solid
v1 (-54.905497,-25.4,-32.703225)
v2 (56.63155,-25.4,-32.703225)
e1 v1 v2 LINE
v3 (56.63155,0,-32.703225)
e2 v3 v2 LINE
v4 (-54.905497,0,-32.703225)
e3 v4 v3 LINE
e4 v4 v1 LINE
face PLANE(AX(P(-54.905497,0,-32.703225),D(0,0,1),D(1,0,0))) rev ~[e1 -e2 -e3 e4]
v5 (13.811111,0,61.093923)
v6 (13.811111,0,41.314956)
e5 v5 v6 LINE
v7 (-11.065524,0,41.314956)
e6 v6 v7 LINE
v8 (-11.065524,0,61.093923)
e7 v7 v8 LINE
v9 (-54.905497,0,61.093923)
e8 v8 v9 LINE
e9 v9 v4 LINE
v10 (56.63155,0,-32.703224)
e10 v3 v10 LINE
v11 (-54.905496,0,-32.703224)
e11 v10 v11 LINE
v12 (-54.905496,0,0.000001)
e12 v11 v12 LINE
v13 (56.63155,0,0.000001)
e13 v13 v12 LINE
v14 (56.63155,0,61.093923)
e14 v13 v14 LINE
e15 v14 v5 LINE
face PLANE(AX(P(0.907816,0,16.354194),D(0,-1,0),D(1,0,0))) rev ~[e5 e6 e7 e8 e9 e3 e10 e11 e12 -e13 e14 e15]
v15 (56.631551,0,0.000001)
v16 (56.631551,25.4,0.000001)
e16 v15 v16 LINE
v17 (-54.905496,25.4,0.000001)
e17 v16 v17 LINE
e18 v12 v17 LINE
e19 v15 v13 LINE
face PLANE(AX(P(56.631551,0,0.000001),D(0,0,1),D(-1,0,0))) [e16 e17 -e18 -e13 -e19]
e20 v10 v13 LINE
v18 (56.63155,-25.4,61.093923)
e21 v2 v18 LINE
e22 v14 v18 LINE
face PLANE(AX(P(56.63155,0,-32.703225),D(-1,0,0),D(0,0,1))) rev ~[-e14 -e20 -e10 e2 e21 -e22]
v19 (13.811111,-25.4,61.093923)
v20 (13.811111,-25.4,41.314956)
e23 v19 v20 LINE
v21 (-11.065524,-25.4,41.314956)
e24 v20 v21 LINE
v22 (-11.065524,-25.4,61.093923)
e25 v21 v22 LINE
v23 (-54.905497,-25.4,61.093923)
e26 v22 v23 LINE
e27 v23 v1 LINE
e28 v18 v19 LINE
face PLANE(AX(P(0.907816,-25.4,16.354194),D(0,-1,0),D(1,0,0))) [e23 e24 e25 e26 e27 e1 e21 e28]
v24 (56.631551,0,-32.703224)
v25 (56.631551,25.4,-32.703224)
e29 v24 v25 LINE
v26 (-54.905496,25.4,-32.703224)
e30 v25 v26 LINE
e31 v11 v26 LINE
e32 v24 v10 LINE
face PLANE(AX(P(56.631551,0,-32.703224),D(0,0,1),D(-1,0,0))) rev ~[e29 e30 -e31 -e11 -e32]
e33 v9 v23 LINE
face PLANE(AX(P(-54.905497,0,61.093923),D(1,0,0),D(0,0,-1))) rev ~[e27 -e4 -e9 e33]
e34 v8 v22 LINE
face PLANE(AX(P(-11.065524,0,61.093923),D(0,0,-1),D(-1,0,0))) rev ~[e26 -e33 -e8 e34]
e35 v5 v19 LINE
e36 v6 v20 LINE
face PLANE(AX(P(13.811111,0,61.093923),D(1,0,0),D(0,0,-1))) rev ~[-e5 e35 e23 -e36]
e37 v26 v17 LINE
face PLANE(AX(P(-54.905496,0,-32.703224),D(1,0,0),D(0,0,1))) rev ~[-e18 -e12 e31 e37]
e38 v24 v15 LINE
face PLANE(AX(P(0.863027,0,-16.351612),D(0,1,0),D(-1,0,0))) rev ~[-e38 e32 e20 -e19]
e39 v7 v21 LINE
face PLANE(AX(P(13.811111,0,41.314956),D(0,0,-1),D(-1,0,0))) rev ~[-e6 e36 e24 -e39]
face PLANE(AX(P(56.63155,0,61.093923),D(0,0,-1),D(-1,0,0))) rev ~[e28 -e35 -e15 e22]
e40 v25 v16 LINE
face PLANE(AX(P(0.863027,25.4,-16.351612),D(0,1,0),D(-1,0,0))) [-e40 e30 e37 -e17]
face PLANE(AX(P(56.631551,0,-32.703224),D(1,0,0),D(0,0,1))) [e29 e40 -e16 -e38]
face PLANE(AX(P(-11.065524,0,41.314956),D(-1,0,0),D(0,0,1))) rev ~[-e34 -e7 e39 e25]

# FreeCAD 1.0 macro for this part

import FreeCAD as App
import Part
import Sketcher

V = App.Vector
Q = App.Units.Quantity

doc = App.newDocument("Part")
body = doc.addObject("PartDesign::Body", "Body")

# Sketch on XZ plane
sketch1 = body.newObject("Sketcher::SketchObject", "Sketch")
sketch1.AttachmentSupport = (doc.getObject("XZ_Plane"), [""])
sketch1.MapMode = "FlatFace"
sketch1.addGeometry(Part.LineSegment(V(-54.905497, 61.093923, 0), V(-54.905497, -32.703225, 0)), False)
sketch1.addGeometry(Part.LineSegment(V(-54.905497, -32.703225, 0), V(56.63155, -32.703225, 0)), False)
sketch1.addGeometry(Part.LineSegment(V(56.63155, -32.703225, 0), V(56.63155, 61.093923, 0)), False)
sketch1.addGeometry(Part.LineSegment(V(56.63155, 61.093923, 0), V(13.811111, 61.093923, 0)), False)
sketch1.addGeometry(Part.LineSegment(V(13.811111, 61.093923, 0), V(13.811111, 41.314956, 0)), False)
sketch1.addGeometry(Part.LineSegment(V(13.811111, 41.314956, 0), V(-11.065524, 41.314956, 0)), False)
sketch1.addGeometry(Part.LineSegment(V(-11.065524, 41.314956, 0), V(-11.065524, 61.093923, 0)), False)
sketch1.addGeometry(Part.LineSegment(V(-11.065524, 61.093923, 0), V(-54.905497, 61.093923, 0)), False)
sketch1.addConstraint(Sketcher.Constraint("Coincident", 0, 2, 1, 1))
sketch1.addConstraint(Sketcher.Constraint("Coincident", 1, 2, 2, 1))
sketch1.addConstraint(Sketcher.Constraint("Coincident", 2, 2, 3, 1))
sketch1.addConstraint(Sketcher.Constraint("Coincident", 3, 2, 4, 1))
sketch1.addConstraint(Sketcher.Constraint("Coincident", 4, 2, 5, 1))
sketch1.addConstraint(Sketcher.Constraint("Coincident", 5, 2, 6, 1))
sketch1.addConstraint(Sketcher.Constraint("Coincident", 6, 2, 7, 1))
sketch1.addConstraint(Sketcher.Constraint("Coincident", 7, 2, 0, 1))
sketch1.addConstraint(Sketcher.Constraint("Vertical", 0))
sketch1.addConstraint(Sketcher.Constraint("Horizontal", 1))
sketch1.addConstraint(Sketcher.Constraint("Vertical", 2))
sketch1.addConstraint(Sketcher.Constraint("Horizontal", 3))
sketch1.addConstraint(Sketcher.Constraint("Vertical", 4))
sketch1.addConstraint(Sketcher.Constraint("Horizontal", 5))
sketch1.addConstraint(Sketcher.Constraint("Vertical", 6))
sketch1.addConstraint(Sketcher.Constraint("Horizontal", 7))
sketch1.addConstraint(Sketcher.Constraint("Horizontal", 3, 2, 6, 2))
sketch1.addConstraint(Sketcher.Constraint("DistanceX", 3, 2, 3, 1, Q("42.820439 mm")))
sketch1.addConstraint(Sketcher.Constraint("DistanceX", 1, 1, 1, 2, Q("111.537047 mm")))
sketch1.addConstraint(Sketcher.Constraint("DistanceX", 5, 2, 5, 1, Q("24.876635 mm")))
sketch1.addConstraint(Sketcher.Constraint("DistanceY", 0, 2, 0, 1, Q("93.797148 mm")))
sketch1.addConstraint(Sketcher.Constraint("DistanceY", 4, 2, 4, 1, Q("19.778967 mm")))
sketch1.addConstraint(Sketcher.Constraint("DistanceX", -1, 1, 1, 2, Q("56.63155 mm")))
sketch1.addConstraint(Sketcher.Constraint("DistanceY", 0, 2, -1, 1, Q("32.703225 mm")))
pad1 = body.newObject("PartDesign::Pad", "Pad")
pad1.Profile = sketch1
pad1.Length = Q("1 in")

# Sketch on XZ plane
sketch2 = body.newObject("Sketcher::SketchObject", "Sketch001")
sketch2.AttachmentSupport = (doc.getObject("XZ_Plane"), [""])
sketch2.MapMode = "FlatFace"
sketch2.addGeometry(Part.LineSegment(V(56.631551, 0, 0), V(56.631551, -32.703224, 0)), False)
sketch2.addGeometry(Part.LineSegment(V(56.631551, -32.703224, 0), V(-54.905496, -32.703224, 0)), False)
sketch2.addGeometry(Part.LineSegment(V(-54.905496, -32.703224, 0), V(-54.905496, 0, 0)), False)
sketch2.addGeometry(Part.LineSegment(V(-54.905496, 0, 0), V(56.631551, 0, 0)), False)
sketch2.addConstraint(Sketcher.Constraint("Coincident", 0, 2, 1, 1))
sketch2.addConstraint(Sketcher.Constraint("Coincident", 1, 2, 2, 1))
sketch2.addConstraint(Sketcher.Constraint("Coincident", 2, 2, 3, 1))
sketch2.addConstraint(Sketcher.Constraint("Coincident", 3, 2, 0, 1))
sketch2.addConstraint(Sketcher.Constraint("Vertical", 0))
sketch2.addConstraint(Sketcher.Constraint("Horizontal", 1))
sketch2.addConstraint(Sketcher.Constraint("Vertical", 2))
sketch2.addConstraint(Sketcher.Constraint("Horizontal", 3))
sketch2.addConstraint(Sketcher.Constraint("PointOnObject", 2, 2, -1))
sketch2.addConstraint(Sketcher.Constraint("DistanceX", 1, 2, 1, 1, Q("111.537047 mm")))
sketch2.addConstraint(Sketcher.Constraint("DistanceY", 0, 2, 0, 1, Q("32.703225 mm")))
sketch2.addConstraint(Sketcher.Constraint("DistanceX", -1, 1, 0, 2, Q("56.631551 mm")))
pad2 = body.newObject("PartDesign::Pad", "Pad001")
pad2.Profile = sketch2
pad2.Length = Q("1 in")
pad2.Reversed = True

doc.recompute()
